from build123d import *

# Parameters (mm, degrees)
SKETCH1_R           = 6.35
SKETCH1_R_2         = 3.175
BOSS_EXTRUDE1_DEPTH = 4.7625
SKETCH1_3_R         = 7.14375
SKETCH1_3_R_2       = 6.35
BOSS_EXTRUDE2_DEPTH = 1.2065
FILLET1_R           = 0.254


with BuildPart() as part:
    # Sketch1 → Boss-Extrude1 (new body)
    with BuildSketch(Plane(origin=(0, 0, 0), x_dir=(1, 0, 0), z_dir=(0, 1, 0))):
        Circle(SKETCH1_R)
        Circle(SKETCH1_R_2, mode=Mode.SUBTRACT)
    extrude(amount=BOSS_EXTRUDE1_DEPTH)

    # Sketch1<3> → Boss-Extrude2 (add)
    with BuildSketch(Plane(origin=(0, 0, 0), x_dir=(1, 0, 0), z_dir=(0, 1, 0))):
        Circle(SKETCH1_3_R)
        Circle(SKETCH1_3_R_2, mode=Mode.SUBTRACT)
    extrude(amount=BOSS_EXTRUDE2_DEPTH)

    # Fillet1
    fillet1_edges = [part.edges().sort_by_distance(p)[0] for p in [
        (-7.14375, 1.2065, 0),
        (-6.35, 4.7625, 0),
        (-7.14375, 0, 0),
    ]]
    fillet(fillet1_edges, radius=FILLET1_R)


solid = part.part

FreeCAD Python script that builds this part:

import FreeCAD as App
import Part
import Sketcher

V = App.Vector
Q = App.Units.Quantity


def edges_at(feature, points):
    """Names of the edges that pass closest to the given points."""
    edges = feature.Shape.Edges
    near = lambda p: min(range(len(edges)), key=lambda i: edges[i].distToShape(Part.Vertex(*p))[0])
    return sorted({f"Edge{near(p) + 1}" for p in points})

doc = App.newDocument("Part")
body = doc.addObject("PartDesign::Body", "Body")

# Sketch on XZ plane
sketch1 = body.newObject("Sketcher::SketchObject", "Sketch")
sketch1.AttachmentSupport = (doc.getObject("XZ_Plane"), [""])
sketch1.MapMode = "FlatFace"
sketch1.addGeometry(Part.Circle(V(0, 0, 0), V(0, 0, 1), 6.3), False)
sketch1.addGeometry(Part.Circle(V(0, 0, 0), V(0, 0, 1), 3.2), False)
sketch1.addConstraint(Sketcher.Constraint("Coincident", 0, 3, -1, 1))
sketch1.addConstraint(Sketcher.Constraint("Coincident", 1, 3, -1, 1))
sketch1.addConstraint(Sketcher.Constraint("Diameter", 0, Q("0.5 in")))
sketch1.addConstraint(Sketcher.Constraint("Diameter", 1, Q("0.25 in")))
pad1 = body.newObject("PartDesign::Pad", "Pad")
pad1.Profile = sketch1
pad1.Length = Q("0.1875 in")
pad1.Reversed = True

# Sketch on XZ plane
sketch2 = body.newObject("Sketcher::SketchObject", "Sketch001")
sketch2.AttachmentSupport = (doc.getObject("XZ_Plane"), [""])
sketch2.MapMode = "FlatFace"
sketch2.addGeometry(Part.Circle(V(0, 0, 0), V(0, 0, 1), 7), False)
sketch2.addGeometry(Part.Circle(V(0, 0, 0), V(0, 0, 1), 6), False)
sketch2.addConstraint(Sketcher.Constraint("Coincident", 0, 3, -1, 1))
sketch2.addConstraint(Sketcher.Constraint("Coincident", 1, 3, -1, 1))
sketch2.addConstraint(Sketcher.Constraint("Diameter", 1, Q("0.5 in")))
sketch2.addConstraint(Sketcher.Constraint("Diameter", 0, Q("0.5625 in")))
pad2 = body.newObject("PartDesign::Pad", "Pad001")
pad2.Profile = sketch2
pad2.Length = Q("0.0475 in")
pad2.Reversed = True
doc.recompute()

fillet = body.newObject("PartDesign::Fillet", "Fillet")
fillet.Base = (pad2, edges_at(pad2, [(-7.144, 1.206, 0), (-6.35, 4.763, 0), (-7.144, 0, 0)]))
fillet.Radius = Q("0.01 in")

doc.recompute()
